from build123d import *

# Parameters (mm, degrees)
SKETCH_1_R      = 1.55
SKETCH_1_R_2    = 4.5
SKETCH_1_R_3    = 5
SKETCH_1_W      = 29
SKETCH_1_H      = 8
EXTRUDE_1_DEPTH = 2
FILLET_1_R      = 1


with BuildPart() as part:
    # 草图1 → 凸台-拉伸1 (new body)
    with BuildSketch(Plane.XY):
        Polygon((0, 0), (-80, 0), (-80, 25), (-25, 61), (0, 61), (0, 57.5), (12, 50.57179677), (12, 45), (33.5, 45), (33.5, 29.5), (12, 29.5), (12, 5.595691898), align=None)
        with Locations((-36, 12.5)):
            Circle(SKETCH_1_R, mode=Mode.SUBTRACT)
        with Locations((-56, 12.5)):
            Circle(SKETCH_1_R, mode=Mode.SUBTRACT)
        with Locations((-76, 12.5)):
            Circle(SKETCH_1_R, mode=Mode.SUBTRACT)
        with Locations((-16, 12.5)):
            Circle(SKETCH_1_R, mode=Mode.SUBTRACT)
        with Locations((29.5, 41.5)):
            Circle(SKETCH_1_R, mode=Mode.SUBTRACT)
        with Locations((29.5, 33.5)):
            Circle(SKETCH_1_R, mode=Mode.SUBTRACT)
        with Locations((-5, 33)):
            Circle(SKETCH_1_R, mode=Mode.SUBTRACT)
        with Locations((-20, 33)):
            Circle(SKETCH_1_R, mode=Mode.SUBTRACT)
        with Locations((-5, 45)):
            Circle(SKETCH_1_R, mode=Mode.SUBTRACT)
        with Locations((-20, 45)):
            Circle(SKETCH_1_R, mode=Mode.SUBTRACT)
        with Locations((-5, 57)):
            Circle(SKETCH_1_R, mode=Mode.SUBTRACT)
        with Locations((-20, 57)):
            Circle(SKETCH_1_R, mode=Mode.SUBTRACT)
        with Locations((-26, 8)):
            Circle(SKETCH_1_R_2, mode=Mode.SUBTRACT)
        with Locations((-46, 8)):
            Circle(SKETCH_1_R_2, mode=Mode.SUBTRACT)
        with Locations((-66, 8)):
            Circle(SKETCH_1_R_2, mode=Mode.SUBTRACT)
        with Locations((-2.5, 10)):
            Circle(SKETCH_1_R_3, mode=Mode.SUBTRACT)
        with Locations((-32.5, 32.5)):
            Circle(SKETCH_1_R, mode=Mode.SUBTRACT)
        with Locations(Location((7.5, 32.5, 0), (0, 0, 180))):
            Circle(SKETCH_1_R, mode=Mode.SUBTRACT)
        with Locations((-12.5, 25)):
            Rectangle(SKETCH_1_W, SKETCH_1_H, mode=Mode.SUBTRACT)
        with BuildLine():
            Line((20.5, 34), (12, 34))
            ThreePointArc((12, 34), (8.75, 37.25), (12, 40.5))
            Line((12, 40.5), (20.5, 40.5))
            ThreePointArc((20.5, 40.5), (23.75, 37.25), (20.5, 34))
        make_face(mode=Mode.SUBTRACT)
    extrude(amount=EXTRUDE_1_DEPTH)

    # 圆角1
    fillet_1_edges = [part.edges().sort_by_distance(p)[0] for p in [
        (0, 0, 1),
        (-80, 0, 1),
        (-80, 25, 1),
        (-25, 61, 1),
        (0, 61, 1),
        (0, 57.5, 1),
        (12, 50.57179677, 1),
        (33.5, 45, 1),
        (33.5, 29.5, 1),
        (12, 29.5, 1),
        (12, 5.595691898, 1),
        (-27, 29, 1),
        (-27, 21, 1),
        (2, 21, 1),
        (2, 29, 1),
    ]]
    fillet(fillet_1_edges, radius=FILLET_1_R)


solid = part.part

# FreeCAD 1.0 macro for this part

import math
import FreeCAD as App
import Part
import Sketcher
Q = App.Units.Quantity


def edges_at(feature, points):
    """Names of the edges that pass closest to the given points."""
    edges = feature.Shape.Edges
    near = lambda p: min(range(len(edges)), key=lambda i: edges[i].distToShape(Part.Vertex(*p))[0])
    return sorted({f"Edge{near(p) + 1}" for p in points})

doc = App.newDocument("Part")
body = doc.addObject("PartDesign::Body", "Body")

# Sketch on XY plane
sketch1 = body.newObject("Sketcher::SketchObject", "Sketch")
sketch1.AttachmentSupport = (doc.getObject("XY_Plane"), [""])
sketch1.MapMode = "FlatFace"
sketch1.addGeometry([
    Part.LineSegment(App.Vector(-80, 0, 0), App.Vector(0, 0, 0)),  # 0
    Part.LineSegment(App.Vector(0, 0, 0), App.Vector(12, 5.6, 0)),  # 1
    Part.LineSegment(App.Vector(12, 5.6, 0), App.Vector(12, 29.5, 0)),  # 2
    Part.LineSegment(App.Vector(12, 29.5, 0), App.Vector(33.5, 29.5, 0)),  # 3
    Part.LineSegment(App.Vector(33.5, 29.5, 0), App.Vector(33.5, 45, 0)),  # 4
    Part.LineSegment(App.Vector(33.5, 45, 0), App.Vector(12, 45, 0)),  # 5
    Part.LineSegment(App.Vector(12, 45, 0), App.Vector(12, 50.6, 0)),  # 6
    Part.LineSegment(App.Vector(12, 50.6, 0), App.Vector(0, 57.5, 0)),  # 7
    Part.LineSegment(App.Vector(0, 57.5, 0), App.Vector(0, 61, 0)),  # 8
    Part.LineSegment(App.Vector(0, 61, 0), App.Vector(-25, 61, 0)),  # 9
    Part.LineSegment(App.Vector(-25, 61, 0), App.Vector(-80, 25, 0)),  # 10
    Part.LineSegment(App.Vector(-80, 25, 0), App.Vector(-80, 0, 0)),  # 11
    Part.Circle(App.Vector(-2.5, 10, 0), App.Vector(0, 0, 1), 5),  # 12
    Part.Circle(App.Vector(-16, 12.5, 0), App.Vector(0, 0, 1), 1.6),  # 13
    Part.LineSegment(App.Vector(-27, 21, 0), App.Vector(-27, 29, 0)),  # 14
    Part.LineSegment(App.Vector(-27, 29, 0), App.Vector(2, 29, 0)),  # 15
    Part.LineSegment(App.Vector(2, 29, 0), App.Vector(2, 21, 0)),  # 16
    Part.LineSegment(App.Vector(2, 21, 0), App.Vector(-27, 21, 0)),  # 17
    Part.Circle(App.Vector(-26, 8, 0), App.Vector(0, 0, 1), 4.5),  # 18
    Part.Circle(App.Vector(-46, 8, 0), App.Vector(0, 0, 1), 4.5),  # 19
    Part.Circle(App.Vector(-36, 12.5, 0), App.Vector(0, 0, 1), 1.6),  # 20
    Part.Circle(App.Vector(-66, 8, 0), App.Vector(0, 0, 1), 4.5),  # 21
    Part.Circle(App.Vector(-56, 12.5, 0), App.Vector(0, 0, 1), 1.6),  # 22
    Part.Circle(App.Vector(-76, 12.5, 0), App.Vector(0, 0, 1), 1.6),  # 23
    Part.Circle(App.Vector(29.5, 33.5, 0), App.Vector(0, 0, 1), 1.6),  # 24
    Part.Circle(App.Vector(7.5, 32.5, 0), App.Vector(0, 0, 1), 1.6),  # 25
    Part.LineSegment(App.Vector(20.5, 34, 0), App.Vector(12, 34, 0)),  # 26
    Part.ArcOfCircle(Part.Circle(App.Vector(12, 37.2, 0), App.Vector(0, 0, 1), 3.2), math.radians(90), math.radians(270)),  # 27
    Part.LineSegment(App.Vector(12, 40.5, 0), App.Vector(20.5, 40.5, 0)),  # 28
    Part.ArcOfCircle(Part.Circle(App.Vector(20.5, 37.2, 0), App.Vector(0, 0, 1), 3.2), math.radians(-90), math.radians(90)),  # 29
    Part.Circle(App.Vector(29.5, 41.5, 0), App.Vector(0, 0, 1), 1.6),  # 30
    Part.Circle(App.Vector(-5, 33, 0), App.Vector(0, 0, 1), 1.6),  # 31
    Part.Circle(App.Vector(-20, 33, 0), App.Vector(0, 0, 1), 1.6),  # 32
    Part.Circle(App.Vector(-5, 45, 0), App.Vector(0, 0, 1), 1.6),  # 33
    Part.Circle(App.Vector(-20, 45, 0), App.Vector(0, 0, 1), 1.6),  # 34
    Part.Circle(App.Vector(-5, 57, 0), App.Vector(0, 0, 1), 1.6),  # 35
    Part.Circle(App.Vector(-20, 57, 0), App.Vector(0, 0, 1), 1.6),  # 36
    Part.Circle(App.Vector(-32.5, 32.5, 0), App.Vector(0, 0, 1), 1.6),  # 37
], False)
sketch1.addConstraint([
    Sketcher.Constraint("Coincident", 0, 2, 1, 1),
    Sketcher.Constraint("Coincident", 1, 2, 2, 1),
    Sketcher.Constraint("Coincident", 2, 2, 3, 1),
    Sketcher.Constraint("Coincident", 3, 2, 4, 1),
    Sketcher.Constraint("Coincident", 4, 2, 5, 1),
    Sketcher.Constraint("Coincident", 5, 2, 6, 1),
    Sketcher.Constraint("Coincident", 6, 2, 7, 1),
    Sketcher.Constraint("Coincident", 7, 2, 8, 1),
    Sketcher.Constraint("Coincident", 8, 2, 9, 1),
    Sketcher.Constraint("Coincident", 9, 2, 10, 1),
    Sketcher.Constraint("Coincident", 10, 2, 11, 1),
    Sketcher.Constraint("Coincident", 11, 2, 0, 1),
    Sketcher.Constraint("Coincident", 14, 2, 15, 1),
    Sketcher.Constraint("Coincident", 15, 2, 16, 1),
    Sketcher.Constraint("Coincident", 16, 2, 17, 1),
    Sketcher.Constraint("Coincident", 17, 2, 14, 1),
    Sketcher.Constraint("Tangent", 26, 2, 27, 2),
    Sketcher.Constraint("Tangent", 27, 1, 28, 1),
    Sketcher.Constraint("Tangent", 28, 2, 29, 2),
    Sketcher.Constraint("Tangent", 29, 1, 26, 1),
    Sketcher.Constraint("Horizontal", 0),
    Sketcher.Constraint("Vertical", 2),
    Sketcher.Constraint("Horizontal", 3),
    Sketcher.Constraint("Vertical", 4),
    Sketcher.Constraint("Horizontal", 5),
    Sketcher.Constraint("Vertical", 6),
    Sketcher.Constraint("Vertical", 8),
    Sketcher.Constraint("Horizontal", 9),
    Sketcher.Constraint("Vertical", 11),
    Sketcher.Constraint("Vertical", 14),
    Sketcher.Constraint("Horizontal", 15),
    Sketcher.Constraint("Vertical", 16),
    Sketcher.Constraint("Horizontal", 17),
    Sketcher.Constraint("Horizontal", 26),
    Sketcher.Constraint("Horizontal", 28),
    Sketcher.Constraint("Coincident", 0, 2, -1, 1),
    Sketcher.Constraint("Equal", 18, 19),
    Sketcher.Constraint("Equal", 13, 20),
    Sketcher.Constraint("Equal", 19, 21),
    Sketcher.Constraint("Equal", 20, 22),
    Sketcher.Constraint("Equal", 22, 23),
    Sketcher.Constraint("Equal", 23, 24),
    Sketcher.Constraint("Equal", 24, 25),
    Sketcher.Constraint("Equal", 25, 30),
    Sketcher.Constraint("Equal", 30, 31),
    Sketcher.Constraint("Equal", 31, 32),
    Sketcher.Constraint("Equal", 32, 33),
    Sketcher.Constraint("Equal", 33, 34),
    Sketcher.Constraint("Equal", 34, 35),
    Sketcher.Constraint("Equal", 35, 36),
    Sketcher.Constraint("Equal", 36, 37),
    Sketcher.Constraint("PointOnObject", 7, 2, -2),
    Sketcher.Constraint("Horizontal", 18, 3, 19, 3),
    Sketcher.Constraint("Horizontal", 13, 3, 20, 3),
    Sketcher.Constraint("Horizontal", 19, 3, 21, 3),
    Sketcher.Constraint("Horizontal", 20, 3, 22, 3),
    Sketcher.Constraint("Horizontal", 22, 3, 23, 3),
    Sketcher.Constraint("Horizontal", 31, 3, 32, 3),
    Sketcher.Constraint("Horizontal", 33, 3, 34, 3),
    Sketcher.Constraint("Horizontal", 35, 3, 36, 3),
    Sketcher.Constraint("Horizontal", 25, 3, 37, 3),
    Sketcher.Constraint("Horizontal", 34, 3, 4, 2),
    Sketcher.Constraint("Vertical", 24, 3, 30, 3),
    Sketcher.Constraint("Vertical", 31, 3, 33, 3),
    Sketcher.Constraint("Vertical", 32, 3, 34, 3),
    Sketcher.Constraint("Vertical", 33, 3, 35, 3),
    Sketcher.Constraint("Vertical", 34, 3, 36, 3),
    Sketcher.Constraint("Vertical", 27, 3, 1, 2),
    Sketcher.Constraint("Vertical", 2, 2, 5, 2),
    Sketcher.Constraint("Equal", 9, 11),
    Sketcher.Constraint("Diameter", 12, 10.0),
    Sketcher.Constraint("Diameter", 18, 9.0),
    Sketcher.Constraint("Diameter", 13, 3.1),
    Sketcher.Constraint("DistanceX", 0, 1, 0, 2, 80.0),
    Sketcher.Constraint("DistanceX", 9, 2, 9, 1, 25.0),
    Sketcher.Constraint("DistanceX", 15, 1, 15, 2, 29.0),
    Sketcher.Constraint("DistanceY", 14, 1, 14, 2, 8.0),
    Sketcher.Constraint("Angle", 1, Q("25 deg")),
    Sketcher.Constraint("Angle", 7, Q("150 deg")),
    Sketcher.Constraint("Radius", 27, 3.25),
    Sketcher.Constraint("DistanceX", 3, 1, 3, 2, 21.5),
    Sketcher.Constraint("DistanceX", 26, 2, 26, 1, 8.5),
    Sketcher.Constraint("DistanceY", 4, 1, 4, 2, 15.5),
    Sketcher.Constraint("DistanceY", 8, 1, 8, 2, 3.5),
    Sketcher.Constraint("DistanceY", -1, 1, 12, 3, 10.0),
    Sketcher.Constraint("DistanceX", 13, 3, -1, 1, 16.0),
    Sketcher.Constraint("DistanceX", 18, 3, -1, 1, 26.0),
    Sketcher.Constraint("DistanceY", -1, 1, 18, 3, 8.0),
    Sketcher.Constraint("DistanceX", 19, 3, -1, 1, 46.0),
    Sketcher.Constraint("DistanceX", 20, 3, -1, 1, 36.0),
    Sketcher.Constraint("DistanceX", 21, 3, -1, 1, 66.0),
    Sketcher.Constraint("DistanceX", 22, 3, -1, 1, 56.0),
    Sketcher.Constraint("DistanceX", 23, 3, -1, 1, 76.0),
    Sketcher.Constraint("DistanceX", -1, 1, 27, 3, 12.0),
    Sketcher.Constraint("DistanceX", 31, 3, -1, 1, 5.0),
    Sketcher.Constraint("DistanceY", -1, 1, 31, 3, 33.0),
    Sketcher.Constraint("DistanceX", 32, 3, -1, 1, 20.0),
    Sketcher.Constraint("DistanceY", -1, 1, 33, 3, 45.0),
    Sketcher.Constraint("DistanceY", -1, 1, 35, 3, 57.0),
    Sketcher.Constraint("DistanceY", -1, 1, 8, 2, 61.0),
    Sketcher.Constraint("DistanceX", 14, 2, -1, 1, 27.0),
    Sketcher.Constraint("DistanceY", -1, 1, 14, 2, 29.0),
    Sketcher.Constraint("DistanceY", -1, 1, 26, 2, 34.0),
    Sketcher.Constraint("DistanceX", 12, 3, 24, 3, 32.0),
    Sketcher.Constraint("DistanceY", 13, 3, 24, 3, 21.0),
    Sketcher.Constraint("DistanceX", 25, 3, 24, 3, 22.0),
    Sketcher.Constraint("DistanceY", 25, 3, 24, 3, 1.0),
    Sketcher.Constraint("DistanceX", 29, 3, 24, 3, 9.0),
    Sketcher.Constraint("DistanceY", 24, 3, 30, 3, 8.0),
    Sketcher.Constraint("DistanceY", 2, 2, 25, 3, 3.0),
    Sketcher.Constraint("DistanceX", 37, 3, -1, 1, 32.5),
])
pad1 = body.newObject("PartDesign::Pad", "Pad")
pad1.Profile = sketch1
pad1.Length = 2
doc.recompute()

fillet = body.newObject("PartDesign::Fillet", "Fillet")
fillet.Base = (pad1, edges_at(pad1, [
    (0, 0, 1),
    (-80, 0, 1),
    (-80, 25, 1),
    (-25, 61, 1),
    (0, 61, 1),
    (0, 57.5, 1),
    (12, 50.572, 1),
    (33.5, 45, 1),
    (33.5, 29.5, 1),
    (12, 29.5, 1),
    (12, 5.596, 1),
    (-27, 29, 1),
    (-27, 21, 1),
    (2, 21, 1),
    (2, 29, 1),
]))
fillet.Radius = 1

doc.recompute()
